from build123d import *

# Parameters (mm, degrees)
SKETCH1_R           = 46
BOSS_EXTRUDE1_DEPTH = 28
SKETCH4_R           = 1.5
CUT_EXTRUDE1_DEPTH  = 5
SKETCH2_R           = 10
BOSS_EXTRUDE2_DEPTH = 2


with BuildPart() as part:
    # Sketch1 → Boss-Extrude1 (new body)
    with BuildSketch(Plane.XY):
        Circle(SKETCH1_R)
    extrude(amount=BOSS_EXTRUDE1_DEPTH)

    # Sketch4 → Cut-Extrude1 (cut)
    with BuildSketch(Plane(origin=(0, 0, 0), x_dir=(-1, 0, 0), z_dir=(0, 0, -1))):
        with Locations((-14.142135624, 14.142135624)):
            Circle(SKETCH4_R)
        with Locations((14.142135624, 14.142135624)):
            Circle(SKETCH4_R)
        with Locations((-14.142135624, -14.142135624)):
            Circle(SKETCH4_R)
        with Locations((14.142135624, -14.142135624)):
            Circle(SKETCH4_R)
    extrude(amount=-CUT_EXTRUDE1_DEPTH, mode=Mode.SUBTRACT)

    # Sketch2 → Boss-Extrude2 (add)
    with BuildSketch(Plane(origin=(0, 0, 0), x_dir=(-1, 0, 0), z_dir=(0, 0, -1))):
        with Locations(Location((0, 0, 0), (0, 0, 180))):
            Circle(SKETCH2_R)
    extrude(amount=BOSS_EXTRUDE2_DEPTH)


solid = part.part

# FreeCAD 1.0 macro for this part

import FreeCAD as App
import Part
import Sketcher

V = App.Vector
Q = App.Units.Quantity

doc = App.newDocument("Part")
body = doc.addObject("PartDesign::Body", "Body")

# Sketch on XY plane
sketch1 = body.newObject("Sketcher::SketchObject", "Sketch")
sketch1.AttachmentSupport = (doc.getObject("XY_Plane"), [""])
sketch1.MapMode = "FlatFace"
sketch1.addGeometry(Part.Circle(V(0, 0, 0), V(0, 0, 1), 46), False)
sketch1.addConstraint([
    Sketcher.Constraint("Coincident", 0, 3, -1, 1),
    Sketcher.Constraint("Diameter", 0, Q("92 mm")),
])
pad1 = body.newObject("PartDesign::Pad", "Pad")
pad1.Profile = sketch1
pad1.Length = 28

# Sketch on XY plane
sketch2 = body.newObject("Sketcher::SketchObject", "Sketch001")
sketch2.AttachmentSupport = (doc.getObject("XY_Plane"), [""])
sketch2.MapMode = "FlatFace"
sketch2.addGeometry([
    Part.Circle(V(14.1, 14.1, 0), V(0, 0, 1), 1.5),
    Part.Circle(V(-14.1, 14.1, 0), V(0, 0, 1), 1.5),
    Part.Circle(V(14.1, -14.1, 0), V(0, 0, 1), 1.5),
    Part.Circle(V(-14.1, -14.1, 0), V(0, 0, 1), 1.5),
], False)
sketch2.addConstraint([
    Sketcher.Constraint("Equal", 0, 1),
    Sketcher.Constraint("Equal", 1, 2),
    Sketcher.Constraint("Equal", 2, 3),
    Sketcher.Constraint("Symmetric", 1, 3, 2, 3, -1, 1),
    Sketcher.Constraint("Symmetric", 0, 3, 3, 3, -1, 1),
    Sketcher.Constraint("Symmetric", 0, 3, 1, 3, -2),
    Sketcher.Constraint("Diameter", 0, Q("3 mm")),
    Sketcher.Constraint("DistanceX", 1, 3, 0, 3, Q("28.284271 mm")),
    Sketcher.Constraint("DistanceY", 2, 3, 0, 3, Q("28.284271 mm")),
])
pocket1 = body.newObject("PartDesign::Pocket", "Pocket")
pocket1.Profile = sketch2
pocket1.Length = 5
pocket1.Reversed = True

# Sketch on XY plane
sketch3 = body.newObject("Sketcher::SketchObject", "Sketch002")
sketch3.AttachmentSupport = (doc.getObject("XY_Plane"), [""])
sketch3.MapMode = "FlatFace"
sketch3.addGeometry(Part.Circle(V(0, 0, 0), V(0, 0, 1), 10), False)
sketch3.addConstraint([
    Sketcher.Constraint("Coincident", 0, 3, -1, 1),
    Sketcher.Constraint("Diameter", 0, Q("20 mm")),
])
pad2 = body.newObject("PartDesign::Pad", "Pad001")
pad2.Profile = sketch3
pad2.Length = 2
pad2.Reversed = True

doc.recompute()
